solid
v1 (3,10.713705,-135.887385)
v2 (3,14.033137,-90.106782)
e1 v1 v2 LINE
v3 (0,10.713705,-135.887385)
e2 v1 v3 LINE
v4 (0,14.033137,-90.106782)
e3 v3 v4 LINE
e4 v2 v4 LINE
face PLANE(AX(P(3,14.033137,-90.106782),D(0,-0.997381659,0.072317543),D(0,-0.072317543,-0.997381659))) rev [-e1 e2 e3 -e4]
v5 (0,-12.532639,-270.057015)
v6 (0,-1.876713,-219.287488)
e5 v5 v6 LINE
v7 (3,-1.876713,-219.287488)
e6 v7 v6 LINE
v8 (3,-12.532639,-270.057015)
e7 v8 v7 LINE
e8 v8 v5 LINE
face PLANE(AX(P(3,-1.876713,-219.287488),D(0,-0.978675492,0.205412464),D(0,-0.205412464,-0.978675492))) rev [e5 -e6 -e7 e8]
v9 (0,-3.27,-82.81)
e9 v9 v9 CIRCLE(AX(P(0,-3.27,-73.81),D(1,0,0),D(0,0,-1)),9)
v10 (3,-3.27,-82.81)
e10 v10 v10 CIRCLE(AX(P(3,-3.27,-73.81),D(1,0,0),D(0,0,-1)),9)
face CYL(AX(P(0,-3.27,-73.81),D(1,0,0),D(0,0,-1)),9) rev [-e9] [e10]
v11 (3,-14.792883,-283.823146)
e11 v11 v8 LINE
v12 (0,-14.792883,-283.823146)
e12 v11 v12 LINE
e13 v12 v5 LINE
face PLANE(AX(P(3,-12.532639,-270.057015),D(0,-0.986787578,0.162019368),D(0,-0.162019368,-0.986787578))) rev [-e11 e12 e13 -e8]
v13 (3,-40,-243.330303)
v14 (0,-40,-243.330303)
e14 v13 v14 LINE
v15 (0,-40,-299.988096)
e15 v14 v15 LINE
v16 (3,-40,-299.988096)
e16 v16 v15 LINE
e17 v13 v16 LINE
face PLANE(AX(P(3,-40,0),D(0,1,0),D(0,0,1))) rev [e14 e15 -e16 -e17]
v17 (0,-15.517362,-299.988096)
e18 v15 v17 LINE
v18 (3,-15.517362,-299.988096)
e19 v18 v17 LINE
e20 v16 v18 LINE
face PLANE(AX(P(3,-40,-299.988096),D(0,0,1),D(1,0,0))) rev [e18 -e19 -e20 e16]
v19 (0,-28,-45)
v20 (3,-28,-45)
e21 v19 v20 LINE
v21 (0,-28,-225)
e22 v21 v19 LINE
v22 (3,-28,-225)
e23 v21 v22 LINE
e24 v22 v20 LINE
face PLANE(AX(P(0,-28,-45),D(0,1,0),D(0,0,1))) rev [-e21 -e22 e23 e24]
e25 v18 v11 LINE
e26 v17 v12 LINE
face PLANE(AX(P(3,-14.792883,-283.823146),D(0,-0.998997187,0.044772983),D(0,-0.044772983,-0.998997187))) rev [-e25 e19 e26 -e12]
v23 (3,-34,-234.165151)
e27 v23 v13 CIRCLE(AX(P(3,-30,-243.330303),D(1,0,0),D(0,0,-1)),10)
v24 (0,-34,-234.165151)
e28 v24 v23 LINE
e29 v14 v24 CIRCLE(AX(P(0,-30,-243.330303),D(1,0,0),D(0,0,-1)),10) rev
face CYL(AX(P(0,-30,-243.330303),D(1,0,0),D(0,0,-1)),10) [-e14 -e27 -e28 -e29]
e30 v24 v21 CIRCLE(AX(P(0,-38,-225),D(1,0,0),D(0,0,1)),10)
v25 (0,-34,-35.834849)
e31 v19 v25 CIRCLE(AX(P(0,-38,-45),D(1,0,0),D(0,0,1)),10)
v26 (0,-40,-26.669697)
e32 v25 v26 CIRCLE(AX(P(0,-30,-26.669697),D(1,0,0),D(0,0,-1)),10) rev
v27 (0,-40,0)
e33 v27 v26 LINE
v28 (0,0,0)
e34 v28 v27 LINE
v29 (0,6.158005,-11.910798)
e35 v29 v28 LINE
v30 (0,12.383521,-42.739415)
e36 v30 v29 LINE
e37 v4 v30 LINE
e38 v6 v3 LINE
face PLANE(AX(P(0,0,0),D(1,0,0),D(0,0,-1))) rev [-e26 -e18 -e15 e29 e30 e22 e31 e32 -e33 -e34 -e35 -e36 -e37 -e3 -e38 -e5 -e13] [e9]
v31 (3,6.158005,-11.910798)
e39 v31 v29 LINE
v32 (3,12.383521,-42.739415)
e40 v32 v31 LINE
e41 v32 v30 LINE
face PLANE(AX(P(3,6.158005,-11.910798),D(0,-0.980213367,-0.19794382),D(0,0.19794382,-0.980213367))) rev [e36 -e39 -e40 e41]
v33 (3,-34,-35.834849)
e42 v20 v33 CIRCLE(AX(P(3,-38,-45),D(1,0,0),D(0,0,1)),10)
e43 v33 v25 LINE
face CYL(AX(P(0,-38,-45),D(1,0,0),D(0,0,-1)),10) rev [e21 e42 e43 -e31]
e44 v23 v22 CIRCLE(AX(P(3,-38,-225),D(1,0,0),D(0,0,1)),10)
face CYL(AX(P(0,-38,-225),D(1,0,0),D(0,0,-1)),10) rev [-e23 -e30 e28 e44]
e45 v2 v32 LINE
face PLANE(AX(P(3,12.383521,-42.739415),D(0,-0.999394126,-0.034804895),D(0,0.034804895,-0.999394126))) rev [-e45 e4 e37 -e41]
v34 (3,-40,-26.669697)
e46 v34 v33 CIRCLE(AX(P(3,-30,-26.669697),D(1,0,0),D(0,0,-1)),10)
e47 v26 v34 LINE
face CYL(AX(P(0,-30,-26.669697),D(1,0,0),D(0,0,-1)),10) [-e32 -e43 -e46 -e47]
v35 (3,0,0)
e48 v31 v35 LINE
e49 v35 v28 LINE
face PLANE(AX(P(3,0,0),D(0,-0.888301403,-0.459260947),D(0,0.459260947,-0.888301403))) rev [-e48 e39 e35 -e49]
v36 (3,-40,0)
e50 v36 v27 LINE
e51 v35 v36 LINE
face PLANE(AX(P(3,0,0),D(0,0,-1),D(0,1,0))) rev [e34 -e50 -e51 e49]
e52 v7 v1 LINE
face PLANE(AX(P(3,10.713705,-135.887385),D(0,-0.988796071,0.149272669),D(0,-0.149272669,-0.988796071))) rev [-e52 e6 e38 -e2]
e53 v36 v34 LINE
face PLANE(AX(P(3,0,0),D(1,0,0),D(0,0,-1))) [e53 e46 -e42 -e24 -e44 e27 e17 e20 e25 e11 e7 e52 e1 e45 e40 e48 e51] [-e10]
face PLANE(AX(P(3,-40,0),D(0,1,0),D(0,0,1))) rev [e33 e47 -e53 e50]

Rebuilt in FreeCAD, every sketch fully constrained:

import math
import FreeCAD as App
import Part
import Sketcher

V = App.Vector


def edges_at(feature, points):
    """Names of the edges that pass closest to the given points."""
    edges = feature.Shape.Edges
    near = lambda p: min(range(len(edges)), key=lambda i: edges[i].distToShape(Part.Vertex(*p))[0])
    return sorted({f"Edge{near(p) + 1}" for p in points})

doc = App.newDocument("Part")
body = doc.addObject("PartDesign::Body", "Body")

# Sketch on YZ plane
sketch1 = doc.addObject("Sketcher::SketchObject", "Sketch")
body.addObject(sketch1)
sketch1.AttachmentSupport = (doc.YZ_Plane, [""])
sketch1.MapMode = "FlatFace"
sketch1.addGeometry([
    Part.LineSegment(V(6.158005, -11.910798, 0), V(0, 0, 0)),  # 0
    Part.LineSegment(V(0, 0, 0), V(-40, 0, 0)),  # 1
    Part.LineSegment(V(-40, 0, 0), V(-40, -299.988096, 0)),  # 2
    Part.LineSegment(V(-40, -299.988096, 0), V(-15.517362, -299.988096, 0)),  # 3
    Part.LineSegment(V(-15.517362, -299.988096, 0), V(-14.792883, -283.823146, 0)),  # 4
    Part.LineSegment(V(-14.792883, -283.823146, 0), V(-12.532639, -270.057015, 0)),  # 5
    Part.LineSegment(V(-12.532639, -270.057015, 0), V(-1.876713, -219.287488, 0)),  # 6
    Part.LineSegment(V(-1.876713, -219.287488, 0), V(10.713705, -135.887385, 0)),  # 7
    Part.LineSegment(V(10.713705, -135.887385, 0), V(14.033137, -90.106782, 0)),  # 8
    Part.LineSegment(V(14.033137, -90.106782, 0), V(12.383521, -42.739415, 0)),  # 9
    Part.LineSegment(V(12.383521, -42.739415, 0), V(6.158005, -11.910798, 0)),  # 10
], False)
sketch1.addConstraint([
    Sketcher.Constraint("Coincident", 0, 2, 1, 1),
    Sketcher.Constraint("Coincident", 1, 2, 2, 1),
    Sketcher.Constraint("Coincident", 2, 2, 3, 1),
    Sketcher.Constraint("Coincident", 3, 2, 4, 1),
    Sketcher.Constraint("Coincident", 4, 2, 5, 1),
    Sketcher.Constraint("Coincident", 5, 2, 6, 1),
    Sketcher.Constraint("Coincident", 6, 2, 7, 1),
    Sketcher.Constraint("Coincident", 7, 2, 8, 1),
    Sketcher.Constraint("Coincident", 8, 2, 9, 1),
    Sketcher.Constraint("Coincident", 9, 2, 10, 1),
    Sketcher.Constraint("Coincident", 10, 2, 0, 1),
    Sketcher.Constraint("Horizontal", 1),
    Sketcher.Constraint("Vertical", 2),
    Sketcher.Constraint("Horizontal", 3),
    Sketcher.Constraint("Coincident", 0, 2, -1, 1),
    Sketcher.Constraint("DistanceX", 1, 2, 1, 1, 40.0),
    Sketcher.Constraint("Distance", 7, 84.345099),
    Sketcher.Constraint("DistanceY", 10, 2, -1, 1, 11.910798),
    Sketcher.Constraint("DistanceX", 10, 2, 7, 2, 4.5557),
    Sketcher.Constraint("Distance", 0, 13.40851),
    Sketcher.Constraint("Distance", 5, 13.95045),
    Sketcher.Constraint("DistanceX", 3, 1, 3, 2, 24.482638),
    Sketcher.Constraint("DistanceY", 2, 2, 2, 1, 299.988096),
    Sketcher.Constraint("DistanceX", 5, 2, -1, 1, 12.532639),
    Sketcher.Constraint("DistanceY", 6, 2, -1, 1, 219.287488),
    Sketcher.Constraint("DistanceY", 8, 2, -1, 1, 90.106782),
    Sketcher.Constraint("DistanceX", -1, 1, 9, 2, 12.383521),
    Sketcher.Constraint("DistanceX", 3, 2, 4, 2, 0.72448),
    Sketcher.Constraint("DistanceY", 3, 2, 4, 2, 16.16495),
    Sketcher.Constraint("DistanceX", 4, 2, 6, 2, 12.916169),
    Sketcher.Constraint("DistanceX", 6, 2, 8, 2, 15.90985),
    Sketcher.Constraint("DistanceY", 7, 2, 9, 2, 93.14797),
])
pad1 = doc.addObject("PartDesign::Pad", "Pad")
body.addObject(pad1)
pad1.Profile = sketch1
pad1.Length = 3

# Sketch on YZ plane
sketch2 = doc.addObject("Sketcher::SketchObject", "Sketch001")
body.addObject(sketch2)
sketch2.AttachmentSupport = (doc.YZ_Plane, [""])
sketch2.MapMode = "FlatFace"
sketch2.AttachmentOffset = App.Placement(V(0, 0, 3), App.Rotation())
sketch2.addGeometry([
    Part.LineSegment(V(-38, -35, 0), V(-40, -35, 0)),  # 0
    Part.LineSegment(V(-40, -35, 0), V(-40, -235, 0)),  # 1
    Part.LineSegment(V(-40, -235, 0), V(-38, -235, 0)),  # 2
    Part.ArcOfCircle(Part.Circle(V(-38, -225, 0), V(0, 0, 1), 10), math.radians(-90), math.radians(0)),  # 3
    Part.LineSegment(V(-28, -225, 0), V(-28, -45, 0)),  # 4
    Part.ArcOfCircle(Part.Circle(V(-38, -45, 0), V(0, 0, 1), 10), math.radians(0), math.radians(90)),  # 5
], False)
sketch2.addConstraint([
    Sketcher.Constraint("Coincident", 0, 2, 1, 1),
    Sketcher.Constraint("Coincident", 1, 2, 2, 1),
    Sketcher.Constraint("Tangent", 2, 2, 3, 1),
    Sketcher.Constraint("Tangent", 3, 2, 4, 1),
    Sketcher.Constraint("Tangent", 4, 2, 5, 1),
    Sketcher.Constraint("Tangent", 5, 2, 0, 1),
    Sketcher.Constraint("Horizontal", 0),
    Sketcher.Constraint("Vertical", 1),
    Sketcher.Constraint("Horizontal", 2),
    Sketcher.Constraint("Vertical", 4),
    Sketcher.Constraint("Equal", 3, 5),
    Sketcher.Constraint("Radius", 3, 10.0),
    Sketcher.Constraint("DistanceX", 0, 2, 0, 1, 2.0),
    Sketcher.Constraint("DistanceY", 1, 2, 1, 1, 200.0),
    Sketcher.Constraint("DistanceX", 3, 3, -1, 1, 38.0),
    Sketcher.Constraint("DistanceY", 3, 3, -1, 1, 225.0),
])
pocket1 = doc.addObject("PartDesign::Pocket", "Pocket")
body.addObject(pocket1)
pocket1.Profile = sketch2
pocket1.Length = 3
doc.recompute()

fillet = doc.addObject("PartDesign::Fillet", "Fillet")
body.addObject(fillet)
fillet.Base = (pocket1, edges_at(pocket1, [(1.5, -40, -235), (1.5, -40, -35)]))
fillet.Radius = 10

# Sketch on YZ plane
sketch3 = doc.addObject("Sketcher::SketchObject", "Sketch002")
body.addObject(sketch3)
sketch3.AttachmentSupport = (doc.YZ_Plane, [""])
sketch3.MapMode = "FlatFace"
sketch3.AttachmentOffset = App.Placement(V(0, 0, 3), App.Rotation())
sketch3.addGeometry(Part.Circle(V(-3.27, -73.81, 0), V(0, 0, 1), 9), False)
sketch3.addConstraint([
    Sketcher.Constraint("Diameter", 0, 18.0),
    Sketcher.Constraint("DistanceX", 0, 3, -1, 1, 3.27),
    Sketcher.Constraint("DistanceY", 0, 3, -1, 1, 73.81),
])
pocket2 = doc.addObject("PartDesign::Pocket", "Pocket001")
body.addObject(pocket2)
pocket2.Profile = sketch3
pocket2.Length = 3

doc.recompute()
